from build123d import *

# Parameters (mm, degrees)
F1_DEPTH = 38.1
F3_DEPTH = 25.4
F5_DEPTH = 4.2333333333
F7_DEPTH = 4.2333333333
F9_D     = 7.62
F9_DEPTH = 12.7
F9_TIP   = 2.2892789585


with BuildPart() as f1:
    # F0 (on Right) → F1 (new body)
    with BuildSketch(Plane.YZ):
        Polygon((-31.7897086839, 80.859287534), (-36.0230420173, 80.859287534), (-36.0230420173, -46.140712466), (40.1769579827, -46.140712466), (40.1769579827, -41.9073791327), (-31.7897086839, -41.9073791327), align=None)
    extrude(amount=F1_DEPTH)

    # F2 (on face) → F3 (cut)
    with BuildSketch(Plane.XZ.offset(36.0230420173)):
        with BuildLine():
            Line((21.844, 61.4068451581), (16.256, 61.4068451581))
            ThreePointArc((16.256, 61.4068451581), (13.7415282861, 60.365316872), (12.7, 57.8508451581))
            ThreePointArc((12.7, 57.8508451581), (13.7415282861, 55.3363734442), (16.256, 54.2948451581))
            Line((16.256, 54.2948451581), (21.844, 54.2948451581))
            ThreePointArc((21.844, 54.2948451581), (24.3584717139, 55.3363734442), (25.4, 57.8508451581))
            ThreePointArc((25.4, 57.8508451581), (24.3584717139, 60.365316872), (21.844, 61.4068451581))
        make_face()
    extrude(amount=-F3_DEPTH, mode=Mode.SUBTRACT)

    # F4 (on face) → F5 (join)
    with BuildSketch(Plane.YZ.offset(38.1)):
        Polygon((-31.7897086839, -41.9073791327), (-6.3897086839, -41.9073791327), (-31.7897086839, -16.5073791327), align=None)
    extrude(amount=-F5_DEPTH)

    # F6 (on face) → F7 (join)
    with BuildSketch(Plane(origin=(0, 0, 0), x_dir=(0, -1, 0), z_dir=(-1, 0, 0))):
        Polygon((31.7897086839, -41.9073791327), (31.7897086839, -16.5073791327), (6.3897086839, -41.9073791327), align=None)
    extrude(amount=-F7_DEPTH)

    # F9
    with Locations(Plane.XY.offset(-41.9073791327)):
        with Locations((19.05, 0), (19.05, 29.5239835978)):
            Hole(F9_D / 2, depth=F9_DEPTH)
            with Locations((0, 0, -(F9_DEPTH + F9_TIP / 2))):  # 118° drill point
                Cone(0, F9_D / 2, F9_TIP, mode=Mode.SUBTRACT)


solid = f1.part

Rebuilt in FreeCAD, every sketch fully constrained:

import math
import FreeCAD as App
import Part
import Sketcher
Q = App.Units.Quantity

doc = App.newDocument("Part")
body = doc.addObject("PartDesign::Body", "Body")

sketch1 = body.newObject("Sketcher::SketchObject", "Sketch")
sketch1.AttachmentSupport = (doc.getObject("YZ_Plane"), [""])
sketch1.MapMode = "FlatFace"
sketch1.addGeometry([
    Part.LineSegment(App.Vector(-31.8, 80.9, 0), App.Vector(-36, 80.9, 0)),
    Part.LineSegment(App.Vector(-36, 80.9, 0), App.Vector(-36, -46.1, 0)),
    Part.LineSegment(App.Vector(-36, -46.1, 0), App.Vector(40.2, -46.1, 0)),
    Part.LineSegment(App.Vector(40.2, -46.1, 0), App.Vector(40.2, -41.9, 0)),
    Part.LineSegment(App.Vector(40.2, -41.9, 0), App.Vector(-31.8, -41.9, 0)),
    Part.LineSegment(App.Vector(-31.8, -41.9, 0), App.Vector(-31.8, 80.9, 0)),
], False)
sketch1.addConstraint([
    Sketcher.Constraint("Coincident", 0, 2, 1, 1),
    Sketcher.Constraint("Coincident", 1, 2, 2, 1),
    Sketcher.Constraint("Coincident", 2, 2, 3, 1),
    Sketcher.Constraint("Coincident", 3, 2, 4, 1),
    Sketcher.Constraint("Coincident", 4, 2, 5, 1),
    Sketcher.Constraint("Coincident", 5, 2, 0, 1),
    Sketcher.Constraint("Horizontal", 0),
    Sketcher.Constraint("Vertical", 1),
    Sketcher.Constraint("Horizontal", 2),
    Sketcher.Constraint("Vertical", 3),
    Sketcher.Constraint("Horizontal", 4),
    Sketcher.Constraint("Vertical", 5),
    Sketcher.Constraint("Equal", 0, 3),
    Sketcher.Constraint("DistanceX", 2, 1, 2, 2, Q("3 in")),
    Sketcher.Constraint("DistanceY", 1, 2, 1, 1, Q("5 in")),
    Sketcher.Constraint("DistanceX", 0, 2, 0, 1, Q("4.233333 mm")),
    Sketcher.Constraint("DistanceY", 3, 2, -1, 1, Q("41.907379 mm")),
    Sketcher.Constraint("DistanceX", 4, 2, -1, 1, Q("31.789709 mm")),
])
pad1 = body.newObject("PartDesign::Pad", "Pad")
pad1.Profile = sketch1
pad1.Length = Q("1.5 in")

sketch2 = body.newObject("Sketcher::SketchObject", "Sketch001")
sketch2.AttachmentSupport = (doc.getObject("XZ_Plane"), [""])
sketch2.MapMode = "FlatFace"
sketch2.AttachmentOffset = App.Placement(App.Vector(0, 0, 36.023042), App.Rotation())
sketch2.addGeometry([
    Part.LineSegment(App.Vector(21.8, 61.4, 0), App.Vector(16.3, 61.4, 0)),
    Part.ArcOfCircle(Part.Circle(App.Vector(16.3, 57.9, 0), App.Vector(0, 0, 1), 3.6), math.radians(90), math.radians(180)),
    Part.ArcOfCircle(Part.Circle(App.Vector(16.3, 57.9, 0), App.Vector(0, 0, 1), 3.6), math.radians(180), math.radians(270)),
    Part.LineSegment(App.Vector(16.3, 54.3, 0), App.Vector(21.8, 54.3, 0)),
    Part.ArcOfCircle(Part.Circle(App.Vector(21.8, 57.9, 0), App.Vector(0, 0, 1), 3.6), math.radians(-90), math.radians(0)),
    Part.ArcOfCircle(Part.Circle(App.Vector(21.8, 57.9, 0), App.Vector(0, 0, 1), 3.6), math.radians(0), math.radians(90)),
], False)
sketch2.addConstraint([
    Sketcher.Constraint("Tangent", 0, 2, 1, 1),
    Sketcher.Constraint("Tangent", 1, 2, 2, 1),
    Sketcher.Constraint("Tangent", 2, 2, 3, 1),
    Sketcher.Constraint("Tangent", 3, 2, 4, 1),
    Sketcher.Constraint("Tangent", 4, 2, 5, 1),
    Sketcher.Constraint("Tangent", 5, 2, 0, 1),
    Sketcher.Constraint("Horizontal", 0),
    Sketcher.Constraint("Horizontal", 3),
    Sketcher.Constraint("Equal", 1, 2),
    Sketcher.Constraint("Equal", 2, 4),
    Sketcher.Constraint("Horizontal", 5, 3, 1, 2),
    Sketcher.Constraint("Horizontal", 1, 2, 4, 2),
    Sketcher.Constraint("Radius", 1, Q("0.14 in")),
    Sketcher.Constraint("DistanceX", -1, 1, 4, 2, Q("1 in")),
    Sketcher.Constraint("DistanceX", 0, 2, 0, 1, Q("0.22 in")),
    Sketcher.Constraint("DistanceY", -1, 1, 1, 3, Q("57.850845 mm")),
])
pocket1 = body.newObject("PartDesign::Pocket", "Pocket")
pocket1.Profile = sketch2
pocket1.Length = Q("1 in")

sketch3 = body.newObject("Sketcher::SketchObject", "Sketch002")
sketch3.AttachmentSupport = (doc.getObject("YZ_Plane"), [""])
sketch3.MapMode = "FlatFace"
sketch3.AttachmentOffset = App.Placement(App.Vector(0, 0, 1.5 * 25.4), App.Rotation())
sketch3.addGeometry([
    Part.LineSegment(App.Vector(-32, -42, 0), App.Vector(-6, -42, 0)),
    Part.LineSegment(App.Vector(-6, -42, 0), App.Vector(-32, -17, 0)),
    Part.LineSegment(App.Vector(-32, -17, 0), App.Vector(-32, -42, 0)),
], False)
sketch3.addConstraint([
    Sketcher.Constraint("Coincident", 0, 2, 1, 1),
    Sketcher.Constraint("Coincident", 1, 2, 2, 1),
    Sketcher.Constraint("Coincident", 2, 2, 0, 1),
    Sketcher.Constraint("Horizontal", 0),
    Sketcher.Constraint("Vertical", 2),
    Sketcher.Constraint("Equal", 0, 2),
    Sketcher.Constraint("DistanceX", 0, 1, 0, 2, Q("1 in")),
    Sketcher.Constraint("DistanceX", 0, 2, -1, 1, Q("6.389709 mm")),
    Sketcher.Constraint("DistanceY", 0, 2, -1, 1, Q("41.907379 mm")),
])
pad2 = body.newObject("PartDesign::Pad", "Pad001")
pad2.Profile = sketch3
pad2.Length = 4.233333
pad2.Reversed = True

sketch4 = body.newObject("Sketcher::SketchObject", "Sketch003")
sketch4.AttachmentSupport = (doc.getObject("YZ_Plane"), [""])
sketch4.MapMode = "FlatFace"
sketch4.addGeometry([
    Part.LineSegment(App.Vector(-32, -42, 0), App.Vector(-32, -17, 0)),
    Part.LineSegment(App.Vector(-32, -17, 0), App.Vector(-6, -42, 0)),
    Part.LineSegment(App.Vector(-6, -42, 0), App.Vector(-32, -42, 0)),
], False)
sketch4.addConstraint([
    Sketcher.Constraint("Coincident", 0, 2, 1, 1),
    Sketcher.Constraint("Coincident", 1, 2, 2, 1),
    Sketcher.Constraint("Coincident", 2, 2, 0, 1),
    Sketcher.Constraint("Vertical", 0),
    Sketcher.Constraint("Horizontal", 2),
    Sketcher.Constraint("Equal", 2, 0),
    Sketcher.Constraint("DistanceX", 2, 2, 2, 1, Q("1 in")),
    Sketcher.Constraint("DistanceX", 0, 2, -1, 1, Q("31.789709 mm")),
    Sketcher.Constraint("DistanceY", 0, 2, -1, 1, Q("16.507379 mm")),
])
pad3 = body.newObject("PartDesign::Pad", "Pad002")
pad3.Profile = sketch4
pad3.Length = 4.233333

sketch5 = body.newObject("Sketcher::SketchObject", "Sketch004")
sketch5.AttachmentSupport = (doc.getObject("XY_Plane"), [""])
sketch5.MapMode = "FlatFace"
sketch5.AttachmentOffset = App.Placement(App.Vector(0, 0, -41.907379), App.Rotation())
sketch5.addGeometry([
    Part.Circle(App.Vector(19.1, 0, 0), App.Vector(0, 0, 1), 3.8),
    Part.Circle(App.Vector(19.1, 29.5, 0), App.Vector(0, 0, 1), 3.8),
], False)
sketch5.addConstraint([
    Sketcher.Constraint("Equal", 0, 1),
    Sketcher.Constraint("PointOnObject", 0, 3, -1),
    Sketcher.Constraint("Vertical", 0, 3, 1, 3),
    Sketcher.Constraint("Diameter", 0, Q("0.3 in")),
    Sketcher.Constraint("DistanceX", -1, 1, 0, 3, Q("0.75 in")),
    Sketcher.Constraint("DistanceY", -1, 1, 1, 3, Q("29.523984 mm")),
])
doc.recompute()
hole = body.newObject("PartDesign::Hole", "Hole")
hole.Profile = sketch5
hole.ThreadType = "None"
hole.Diameter = Q("0.3 in")
hole.DepthType = "Dimension"
hole.Depth = Q("0.5 in")
hole.DrillPoint = "Angled"
hole.DrillPointAngle = 118

doc.recompute()
